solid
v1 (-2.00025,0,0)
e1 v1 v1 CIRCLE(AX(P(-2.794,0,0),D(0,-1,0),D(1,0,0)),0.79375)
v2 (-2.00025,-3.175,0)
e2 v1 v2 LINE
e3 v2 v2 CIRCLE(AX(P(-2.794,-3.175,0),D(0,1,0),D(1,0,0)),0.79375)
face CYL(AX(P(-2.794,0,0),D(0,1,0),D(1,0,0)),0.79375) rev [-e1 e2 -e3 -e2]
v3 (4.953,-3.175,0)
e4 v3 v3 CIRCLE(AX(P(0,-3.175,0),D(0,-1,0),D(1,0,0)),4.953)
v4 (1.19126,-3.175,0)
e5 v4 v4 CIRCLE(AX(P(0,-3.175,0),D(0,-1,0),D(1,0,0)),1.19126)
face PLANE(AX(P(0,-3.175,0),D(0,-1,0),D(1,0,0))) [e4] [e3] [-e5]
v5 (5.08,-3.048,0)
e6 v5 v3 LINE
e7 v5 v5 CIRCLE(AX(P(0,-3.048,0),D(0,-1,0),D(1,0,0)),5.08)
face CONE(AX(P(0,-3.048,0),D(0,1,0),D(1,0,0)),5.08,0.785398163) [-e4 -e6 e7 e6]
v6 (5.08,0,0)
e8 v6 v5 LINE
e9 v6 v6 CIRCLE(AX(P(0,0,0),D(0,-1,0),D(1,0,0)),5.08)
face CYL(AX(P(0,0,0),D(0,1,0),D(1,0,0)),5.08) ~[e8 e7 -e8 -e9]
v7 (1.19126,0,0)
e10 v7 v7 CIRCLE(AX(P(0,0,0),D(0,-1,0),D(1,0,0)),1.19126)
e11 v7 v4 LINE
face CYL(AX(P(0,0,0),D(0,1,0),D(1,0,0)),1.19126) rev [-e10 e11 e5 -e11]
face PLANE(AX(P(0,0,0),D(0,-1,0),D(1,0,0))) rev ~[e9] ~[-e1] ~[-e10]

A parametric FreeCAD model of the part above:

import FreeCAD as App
import Part
import Sketcher

V = App.Vector
Q = App.Units.Quantity


def edges_at(feature, points):
    """Names of the edges that pass closest to the given points."""
    edges = feature.Shape.Edges
    near = lambda p: min(range(len(edges)), key=lambda i: edges[i].distToShape(Part.Vertex(*p))[0])
    return sorted({f"Edge{near(p) + 1}" for p in points})

doc = App.newDocument("Part")
body = doc.addObject("PartDesign::Body", "Body")

# Sketch on XZ plane
sketch1 = body.newObject("Sketcher::SketchObject", "Sketch")
sketch1.AttachmentSupport = (doc.getObject("XZ_Plane"), [""])
sketch1.MapMode = "FlatFace"
sketch1.addGeometry([
    Part.Circle(V(0, 0, 0), V(0, 0, 1), 5.1),
    Part.Circle(V(0, 0, 0), V(0, 0, 1), 1.2),
], False)
sketch1.addConstraint([
    Sketcher.Constraint("Coincident", 0, 3, -1, 1),
    Sketcher.Constraint("Coincident", 1, 3, -1, 1),
    Sketcher.Constraint("Diameter", 0, Q("0.4 in")),
    Sketcher.Constraint("Diameter", 1, Q("0.0938 in")),
])
pad1 = body.newObject("PartDesign::Pad", "Pad")
pad1.Profile = sketch1
pad1.Length = Q("0.125 in")
doc.recompute()

chamfer = body.newObject("PartDesign::Chamfer", "Chamfer")
chamfer.Base = (pad1, edges_at(pad1, [(-5.08, -3.175, 0)]))
chamfer.Size = Q("0.005 in")

# Sketch on XZ plane
sketch2 = body.newObject("Sketcher::SketchObject", "Sketch001")
sketch2.AttachmentSupport = (doc.getObject("XZ_Plane"), [""])
sketch2.MapMode = "FlatFace"
sketch2.addGeometry(Part.Circle(V(-2.8, 0, 0), V(0, 0, 1), 0.8), False)
sketch2.addConstraint([
    Sketcher.Constraint("PointOnObject", 0, 3, -1),
    Sketcher.Constraint("Diameter", 0, Q("0.0625 in")),
    Sketcher.Constraint("DistanceX", 0, 3, -1, 1, Q("0.11 in")),
])
pocket1 = body.newObject("PartDesign::Pocket", "Pocket")
pocket1.Profile = sketch2
pocket1.Type = "ThroughAll"
pocket1.Midplane = True

doc.recompute()
